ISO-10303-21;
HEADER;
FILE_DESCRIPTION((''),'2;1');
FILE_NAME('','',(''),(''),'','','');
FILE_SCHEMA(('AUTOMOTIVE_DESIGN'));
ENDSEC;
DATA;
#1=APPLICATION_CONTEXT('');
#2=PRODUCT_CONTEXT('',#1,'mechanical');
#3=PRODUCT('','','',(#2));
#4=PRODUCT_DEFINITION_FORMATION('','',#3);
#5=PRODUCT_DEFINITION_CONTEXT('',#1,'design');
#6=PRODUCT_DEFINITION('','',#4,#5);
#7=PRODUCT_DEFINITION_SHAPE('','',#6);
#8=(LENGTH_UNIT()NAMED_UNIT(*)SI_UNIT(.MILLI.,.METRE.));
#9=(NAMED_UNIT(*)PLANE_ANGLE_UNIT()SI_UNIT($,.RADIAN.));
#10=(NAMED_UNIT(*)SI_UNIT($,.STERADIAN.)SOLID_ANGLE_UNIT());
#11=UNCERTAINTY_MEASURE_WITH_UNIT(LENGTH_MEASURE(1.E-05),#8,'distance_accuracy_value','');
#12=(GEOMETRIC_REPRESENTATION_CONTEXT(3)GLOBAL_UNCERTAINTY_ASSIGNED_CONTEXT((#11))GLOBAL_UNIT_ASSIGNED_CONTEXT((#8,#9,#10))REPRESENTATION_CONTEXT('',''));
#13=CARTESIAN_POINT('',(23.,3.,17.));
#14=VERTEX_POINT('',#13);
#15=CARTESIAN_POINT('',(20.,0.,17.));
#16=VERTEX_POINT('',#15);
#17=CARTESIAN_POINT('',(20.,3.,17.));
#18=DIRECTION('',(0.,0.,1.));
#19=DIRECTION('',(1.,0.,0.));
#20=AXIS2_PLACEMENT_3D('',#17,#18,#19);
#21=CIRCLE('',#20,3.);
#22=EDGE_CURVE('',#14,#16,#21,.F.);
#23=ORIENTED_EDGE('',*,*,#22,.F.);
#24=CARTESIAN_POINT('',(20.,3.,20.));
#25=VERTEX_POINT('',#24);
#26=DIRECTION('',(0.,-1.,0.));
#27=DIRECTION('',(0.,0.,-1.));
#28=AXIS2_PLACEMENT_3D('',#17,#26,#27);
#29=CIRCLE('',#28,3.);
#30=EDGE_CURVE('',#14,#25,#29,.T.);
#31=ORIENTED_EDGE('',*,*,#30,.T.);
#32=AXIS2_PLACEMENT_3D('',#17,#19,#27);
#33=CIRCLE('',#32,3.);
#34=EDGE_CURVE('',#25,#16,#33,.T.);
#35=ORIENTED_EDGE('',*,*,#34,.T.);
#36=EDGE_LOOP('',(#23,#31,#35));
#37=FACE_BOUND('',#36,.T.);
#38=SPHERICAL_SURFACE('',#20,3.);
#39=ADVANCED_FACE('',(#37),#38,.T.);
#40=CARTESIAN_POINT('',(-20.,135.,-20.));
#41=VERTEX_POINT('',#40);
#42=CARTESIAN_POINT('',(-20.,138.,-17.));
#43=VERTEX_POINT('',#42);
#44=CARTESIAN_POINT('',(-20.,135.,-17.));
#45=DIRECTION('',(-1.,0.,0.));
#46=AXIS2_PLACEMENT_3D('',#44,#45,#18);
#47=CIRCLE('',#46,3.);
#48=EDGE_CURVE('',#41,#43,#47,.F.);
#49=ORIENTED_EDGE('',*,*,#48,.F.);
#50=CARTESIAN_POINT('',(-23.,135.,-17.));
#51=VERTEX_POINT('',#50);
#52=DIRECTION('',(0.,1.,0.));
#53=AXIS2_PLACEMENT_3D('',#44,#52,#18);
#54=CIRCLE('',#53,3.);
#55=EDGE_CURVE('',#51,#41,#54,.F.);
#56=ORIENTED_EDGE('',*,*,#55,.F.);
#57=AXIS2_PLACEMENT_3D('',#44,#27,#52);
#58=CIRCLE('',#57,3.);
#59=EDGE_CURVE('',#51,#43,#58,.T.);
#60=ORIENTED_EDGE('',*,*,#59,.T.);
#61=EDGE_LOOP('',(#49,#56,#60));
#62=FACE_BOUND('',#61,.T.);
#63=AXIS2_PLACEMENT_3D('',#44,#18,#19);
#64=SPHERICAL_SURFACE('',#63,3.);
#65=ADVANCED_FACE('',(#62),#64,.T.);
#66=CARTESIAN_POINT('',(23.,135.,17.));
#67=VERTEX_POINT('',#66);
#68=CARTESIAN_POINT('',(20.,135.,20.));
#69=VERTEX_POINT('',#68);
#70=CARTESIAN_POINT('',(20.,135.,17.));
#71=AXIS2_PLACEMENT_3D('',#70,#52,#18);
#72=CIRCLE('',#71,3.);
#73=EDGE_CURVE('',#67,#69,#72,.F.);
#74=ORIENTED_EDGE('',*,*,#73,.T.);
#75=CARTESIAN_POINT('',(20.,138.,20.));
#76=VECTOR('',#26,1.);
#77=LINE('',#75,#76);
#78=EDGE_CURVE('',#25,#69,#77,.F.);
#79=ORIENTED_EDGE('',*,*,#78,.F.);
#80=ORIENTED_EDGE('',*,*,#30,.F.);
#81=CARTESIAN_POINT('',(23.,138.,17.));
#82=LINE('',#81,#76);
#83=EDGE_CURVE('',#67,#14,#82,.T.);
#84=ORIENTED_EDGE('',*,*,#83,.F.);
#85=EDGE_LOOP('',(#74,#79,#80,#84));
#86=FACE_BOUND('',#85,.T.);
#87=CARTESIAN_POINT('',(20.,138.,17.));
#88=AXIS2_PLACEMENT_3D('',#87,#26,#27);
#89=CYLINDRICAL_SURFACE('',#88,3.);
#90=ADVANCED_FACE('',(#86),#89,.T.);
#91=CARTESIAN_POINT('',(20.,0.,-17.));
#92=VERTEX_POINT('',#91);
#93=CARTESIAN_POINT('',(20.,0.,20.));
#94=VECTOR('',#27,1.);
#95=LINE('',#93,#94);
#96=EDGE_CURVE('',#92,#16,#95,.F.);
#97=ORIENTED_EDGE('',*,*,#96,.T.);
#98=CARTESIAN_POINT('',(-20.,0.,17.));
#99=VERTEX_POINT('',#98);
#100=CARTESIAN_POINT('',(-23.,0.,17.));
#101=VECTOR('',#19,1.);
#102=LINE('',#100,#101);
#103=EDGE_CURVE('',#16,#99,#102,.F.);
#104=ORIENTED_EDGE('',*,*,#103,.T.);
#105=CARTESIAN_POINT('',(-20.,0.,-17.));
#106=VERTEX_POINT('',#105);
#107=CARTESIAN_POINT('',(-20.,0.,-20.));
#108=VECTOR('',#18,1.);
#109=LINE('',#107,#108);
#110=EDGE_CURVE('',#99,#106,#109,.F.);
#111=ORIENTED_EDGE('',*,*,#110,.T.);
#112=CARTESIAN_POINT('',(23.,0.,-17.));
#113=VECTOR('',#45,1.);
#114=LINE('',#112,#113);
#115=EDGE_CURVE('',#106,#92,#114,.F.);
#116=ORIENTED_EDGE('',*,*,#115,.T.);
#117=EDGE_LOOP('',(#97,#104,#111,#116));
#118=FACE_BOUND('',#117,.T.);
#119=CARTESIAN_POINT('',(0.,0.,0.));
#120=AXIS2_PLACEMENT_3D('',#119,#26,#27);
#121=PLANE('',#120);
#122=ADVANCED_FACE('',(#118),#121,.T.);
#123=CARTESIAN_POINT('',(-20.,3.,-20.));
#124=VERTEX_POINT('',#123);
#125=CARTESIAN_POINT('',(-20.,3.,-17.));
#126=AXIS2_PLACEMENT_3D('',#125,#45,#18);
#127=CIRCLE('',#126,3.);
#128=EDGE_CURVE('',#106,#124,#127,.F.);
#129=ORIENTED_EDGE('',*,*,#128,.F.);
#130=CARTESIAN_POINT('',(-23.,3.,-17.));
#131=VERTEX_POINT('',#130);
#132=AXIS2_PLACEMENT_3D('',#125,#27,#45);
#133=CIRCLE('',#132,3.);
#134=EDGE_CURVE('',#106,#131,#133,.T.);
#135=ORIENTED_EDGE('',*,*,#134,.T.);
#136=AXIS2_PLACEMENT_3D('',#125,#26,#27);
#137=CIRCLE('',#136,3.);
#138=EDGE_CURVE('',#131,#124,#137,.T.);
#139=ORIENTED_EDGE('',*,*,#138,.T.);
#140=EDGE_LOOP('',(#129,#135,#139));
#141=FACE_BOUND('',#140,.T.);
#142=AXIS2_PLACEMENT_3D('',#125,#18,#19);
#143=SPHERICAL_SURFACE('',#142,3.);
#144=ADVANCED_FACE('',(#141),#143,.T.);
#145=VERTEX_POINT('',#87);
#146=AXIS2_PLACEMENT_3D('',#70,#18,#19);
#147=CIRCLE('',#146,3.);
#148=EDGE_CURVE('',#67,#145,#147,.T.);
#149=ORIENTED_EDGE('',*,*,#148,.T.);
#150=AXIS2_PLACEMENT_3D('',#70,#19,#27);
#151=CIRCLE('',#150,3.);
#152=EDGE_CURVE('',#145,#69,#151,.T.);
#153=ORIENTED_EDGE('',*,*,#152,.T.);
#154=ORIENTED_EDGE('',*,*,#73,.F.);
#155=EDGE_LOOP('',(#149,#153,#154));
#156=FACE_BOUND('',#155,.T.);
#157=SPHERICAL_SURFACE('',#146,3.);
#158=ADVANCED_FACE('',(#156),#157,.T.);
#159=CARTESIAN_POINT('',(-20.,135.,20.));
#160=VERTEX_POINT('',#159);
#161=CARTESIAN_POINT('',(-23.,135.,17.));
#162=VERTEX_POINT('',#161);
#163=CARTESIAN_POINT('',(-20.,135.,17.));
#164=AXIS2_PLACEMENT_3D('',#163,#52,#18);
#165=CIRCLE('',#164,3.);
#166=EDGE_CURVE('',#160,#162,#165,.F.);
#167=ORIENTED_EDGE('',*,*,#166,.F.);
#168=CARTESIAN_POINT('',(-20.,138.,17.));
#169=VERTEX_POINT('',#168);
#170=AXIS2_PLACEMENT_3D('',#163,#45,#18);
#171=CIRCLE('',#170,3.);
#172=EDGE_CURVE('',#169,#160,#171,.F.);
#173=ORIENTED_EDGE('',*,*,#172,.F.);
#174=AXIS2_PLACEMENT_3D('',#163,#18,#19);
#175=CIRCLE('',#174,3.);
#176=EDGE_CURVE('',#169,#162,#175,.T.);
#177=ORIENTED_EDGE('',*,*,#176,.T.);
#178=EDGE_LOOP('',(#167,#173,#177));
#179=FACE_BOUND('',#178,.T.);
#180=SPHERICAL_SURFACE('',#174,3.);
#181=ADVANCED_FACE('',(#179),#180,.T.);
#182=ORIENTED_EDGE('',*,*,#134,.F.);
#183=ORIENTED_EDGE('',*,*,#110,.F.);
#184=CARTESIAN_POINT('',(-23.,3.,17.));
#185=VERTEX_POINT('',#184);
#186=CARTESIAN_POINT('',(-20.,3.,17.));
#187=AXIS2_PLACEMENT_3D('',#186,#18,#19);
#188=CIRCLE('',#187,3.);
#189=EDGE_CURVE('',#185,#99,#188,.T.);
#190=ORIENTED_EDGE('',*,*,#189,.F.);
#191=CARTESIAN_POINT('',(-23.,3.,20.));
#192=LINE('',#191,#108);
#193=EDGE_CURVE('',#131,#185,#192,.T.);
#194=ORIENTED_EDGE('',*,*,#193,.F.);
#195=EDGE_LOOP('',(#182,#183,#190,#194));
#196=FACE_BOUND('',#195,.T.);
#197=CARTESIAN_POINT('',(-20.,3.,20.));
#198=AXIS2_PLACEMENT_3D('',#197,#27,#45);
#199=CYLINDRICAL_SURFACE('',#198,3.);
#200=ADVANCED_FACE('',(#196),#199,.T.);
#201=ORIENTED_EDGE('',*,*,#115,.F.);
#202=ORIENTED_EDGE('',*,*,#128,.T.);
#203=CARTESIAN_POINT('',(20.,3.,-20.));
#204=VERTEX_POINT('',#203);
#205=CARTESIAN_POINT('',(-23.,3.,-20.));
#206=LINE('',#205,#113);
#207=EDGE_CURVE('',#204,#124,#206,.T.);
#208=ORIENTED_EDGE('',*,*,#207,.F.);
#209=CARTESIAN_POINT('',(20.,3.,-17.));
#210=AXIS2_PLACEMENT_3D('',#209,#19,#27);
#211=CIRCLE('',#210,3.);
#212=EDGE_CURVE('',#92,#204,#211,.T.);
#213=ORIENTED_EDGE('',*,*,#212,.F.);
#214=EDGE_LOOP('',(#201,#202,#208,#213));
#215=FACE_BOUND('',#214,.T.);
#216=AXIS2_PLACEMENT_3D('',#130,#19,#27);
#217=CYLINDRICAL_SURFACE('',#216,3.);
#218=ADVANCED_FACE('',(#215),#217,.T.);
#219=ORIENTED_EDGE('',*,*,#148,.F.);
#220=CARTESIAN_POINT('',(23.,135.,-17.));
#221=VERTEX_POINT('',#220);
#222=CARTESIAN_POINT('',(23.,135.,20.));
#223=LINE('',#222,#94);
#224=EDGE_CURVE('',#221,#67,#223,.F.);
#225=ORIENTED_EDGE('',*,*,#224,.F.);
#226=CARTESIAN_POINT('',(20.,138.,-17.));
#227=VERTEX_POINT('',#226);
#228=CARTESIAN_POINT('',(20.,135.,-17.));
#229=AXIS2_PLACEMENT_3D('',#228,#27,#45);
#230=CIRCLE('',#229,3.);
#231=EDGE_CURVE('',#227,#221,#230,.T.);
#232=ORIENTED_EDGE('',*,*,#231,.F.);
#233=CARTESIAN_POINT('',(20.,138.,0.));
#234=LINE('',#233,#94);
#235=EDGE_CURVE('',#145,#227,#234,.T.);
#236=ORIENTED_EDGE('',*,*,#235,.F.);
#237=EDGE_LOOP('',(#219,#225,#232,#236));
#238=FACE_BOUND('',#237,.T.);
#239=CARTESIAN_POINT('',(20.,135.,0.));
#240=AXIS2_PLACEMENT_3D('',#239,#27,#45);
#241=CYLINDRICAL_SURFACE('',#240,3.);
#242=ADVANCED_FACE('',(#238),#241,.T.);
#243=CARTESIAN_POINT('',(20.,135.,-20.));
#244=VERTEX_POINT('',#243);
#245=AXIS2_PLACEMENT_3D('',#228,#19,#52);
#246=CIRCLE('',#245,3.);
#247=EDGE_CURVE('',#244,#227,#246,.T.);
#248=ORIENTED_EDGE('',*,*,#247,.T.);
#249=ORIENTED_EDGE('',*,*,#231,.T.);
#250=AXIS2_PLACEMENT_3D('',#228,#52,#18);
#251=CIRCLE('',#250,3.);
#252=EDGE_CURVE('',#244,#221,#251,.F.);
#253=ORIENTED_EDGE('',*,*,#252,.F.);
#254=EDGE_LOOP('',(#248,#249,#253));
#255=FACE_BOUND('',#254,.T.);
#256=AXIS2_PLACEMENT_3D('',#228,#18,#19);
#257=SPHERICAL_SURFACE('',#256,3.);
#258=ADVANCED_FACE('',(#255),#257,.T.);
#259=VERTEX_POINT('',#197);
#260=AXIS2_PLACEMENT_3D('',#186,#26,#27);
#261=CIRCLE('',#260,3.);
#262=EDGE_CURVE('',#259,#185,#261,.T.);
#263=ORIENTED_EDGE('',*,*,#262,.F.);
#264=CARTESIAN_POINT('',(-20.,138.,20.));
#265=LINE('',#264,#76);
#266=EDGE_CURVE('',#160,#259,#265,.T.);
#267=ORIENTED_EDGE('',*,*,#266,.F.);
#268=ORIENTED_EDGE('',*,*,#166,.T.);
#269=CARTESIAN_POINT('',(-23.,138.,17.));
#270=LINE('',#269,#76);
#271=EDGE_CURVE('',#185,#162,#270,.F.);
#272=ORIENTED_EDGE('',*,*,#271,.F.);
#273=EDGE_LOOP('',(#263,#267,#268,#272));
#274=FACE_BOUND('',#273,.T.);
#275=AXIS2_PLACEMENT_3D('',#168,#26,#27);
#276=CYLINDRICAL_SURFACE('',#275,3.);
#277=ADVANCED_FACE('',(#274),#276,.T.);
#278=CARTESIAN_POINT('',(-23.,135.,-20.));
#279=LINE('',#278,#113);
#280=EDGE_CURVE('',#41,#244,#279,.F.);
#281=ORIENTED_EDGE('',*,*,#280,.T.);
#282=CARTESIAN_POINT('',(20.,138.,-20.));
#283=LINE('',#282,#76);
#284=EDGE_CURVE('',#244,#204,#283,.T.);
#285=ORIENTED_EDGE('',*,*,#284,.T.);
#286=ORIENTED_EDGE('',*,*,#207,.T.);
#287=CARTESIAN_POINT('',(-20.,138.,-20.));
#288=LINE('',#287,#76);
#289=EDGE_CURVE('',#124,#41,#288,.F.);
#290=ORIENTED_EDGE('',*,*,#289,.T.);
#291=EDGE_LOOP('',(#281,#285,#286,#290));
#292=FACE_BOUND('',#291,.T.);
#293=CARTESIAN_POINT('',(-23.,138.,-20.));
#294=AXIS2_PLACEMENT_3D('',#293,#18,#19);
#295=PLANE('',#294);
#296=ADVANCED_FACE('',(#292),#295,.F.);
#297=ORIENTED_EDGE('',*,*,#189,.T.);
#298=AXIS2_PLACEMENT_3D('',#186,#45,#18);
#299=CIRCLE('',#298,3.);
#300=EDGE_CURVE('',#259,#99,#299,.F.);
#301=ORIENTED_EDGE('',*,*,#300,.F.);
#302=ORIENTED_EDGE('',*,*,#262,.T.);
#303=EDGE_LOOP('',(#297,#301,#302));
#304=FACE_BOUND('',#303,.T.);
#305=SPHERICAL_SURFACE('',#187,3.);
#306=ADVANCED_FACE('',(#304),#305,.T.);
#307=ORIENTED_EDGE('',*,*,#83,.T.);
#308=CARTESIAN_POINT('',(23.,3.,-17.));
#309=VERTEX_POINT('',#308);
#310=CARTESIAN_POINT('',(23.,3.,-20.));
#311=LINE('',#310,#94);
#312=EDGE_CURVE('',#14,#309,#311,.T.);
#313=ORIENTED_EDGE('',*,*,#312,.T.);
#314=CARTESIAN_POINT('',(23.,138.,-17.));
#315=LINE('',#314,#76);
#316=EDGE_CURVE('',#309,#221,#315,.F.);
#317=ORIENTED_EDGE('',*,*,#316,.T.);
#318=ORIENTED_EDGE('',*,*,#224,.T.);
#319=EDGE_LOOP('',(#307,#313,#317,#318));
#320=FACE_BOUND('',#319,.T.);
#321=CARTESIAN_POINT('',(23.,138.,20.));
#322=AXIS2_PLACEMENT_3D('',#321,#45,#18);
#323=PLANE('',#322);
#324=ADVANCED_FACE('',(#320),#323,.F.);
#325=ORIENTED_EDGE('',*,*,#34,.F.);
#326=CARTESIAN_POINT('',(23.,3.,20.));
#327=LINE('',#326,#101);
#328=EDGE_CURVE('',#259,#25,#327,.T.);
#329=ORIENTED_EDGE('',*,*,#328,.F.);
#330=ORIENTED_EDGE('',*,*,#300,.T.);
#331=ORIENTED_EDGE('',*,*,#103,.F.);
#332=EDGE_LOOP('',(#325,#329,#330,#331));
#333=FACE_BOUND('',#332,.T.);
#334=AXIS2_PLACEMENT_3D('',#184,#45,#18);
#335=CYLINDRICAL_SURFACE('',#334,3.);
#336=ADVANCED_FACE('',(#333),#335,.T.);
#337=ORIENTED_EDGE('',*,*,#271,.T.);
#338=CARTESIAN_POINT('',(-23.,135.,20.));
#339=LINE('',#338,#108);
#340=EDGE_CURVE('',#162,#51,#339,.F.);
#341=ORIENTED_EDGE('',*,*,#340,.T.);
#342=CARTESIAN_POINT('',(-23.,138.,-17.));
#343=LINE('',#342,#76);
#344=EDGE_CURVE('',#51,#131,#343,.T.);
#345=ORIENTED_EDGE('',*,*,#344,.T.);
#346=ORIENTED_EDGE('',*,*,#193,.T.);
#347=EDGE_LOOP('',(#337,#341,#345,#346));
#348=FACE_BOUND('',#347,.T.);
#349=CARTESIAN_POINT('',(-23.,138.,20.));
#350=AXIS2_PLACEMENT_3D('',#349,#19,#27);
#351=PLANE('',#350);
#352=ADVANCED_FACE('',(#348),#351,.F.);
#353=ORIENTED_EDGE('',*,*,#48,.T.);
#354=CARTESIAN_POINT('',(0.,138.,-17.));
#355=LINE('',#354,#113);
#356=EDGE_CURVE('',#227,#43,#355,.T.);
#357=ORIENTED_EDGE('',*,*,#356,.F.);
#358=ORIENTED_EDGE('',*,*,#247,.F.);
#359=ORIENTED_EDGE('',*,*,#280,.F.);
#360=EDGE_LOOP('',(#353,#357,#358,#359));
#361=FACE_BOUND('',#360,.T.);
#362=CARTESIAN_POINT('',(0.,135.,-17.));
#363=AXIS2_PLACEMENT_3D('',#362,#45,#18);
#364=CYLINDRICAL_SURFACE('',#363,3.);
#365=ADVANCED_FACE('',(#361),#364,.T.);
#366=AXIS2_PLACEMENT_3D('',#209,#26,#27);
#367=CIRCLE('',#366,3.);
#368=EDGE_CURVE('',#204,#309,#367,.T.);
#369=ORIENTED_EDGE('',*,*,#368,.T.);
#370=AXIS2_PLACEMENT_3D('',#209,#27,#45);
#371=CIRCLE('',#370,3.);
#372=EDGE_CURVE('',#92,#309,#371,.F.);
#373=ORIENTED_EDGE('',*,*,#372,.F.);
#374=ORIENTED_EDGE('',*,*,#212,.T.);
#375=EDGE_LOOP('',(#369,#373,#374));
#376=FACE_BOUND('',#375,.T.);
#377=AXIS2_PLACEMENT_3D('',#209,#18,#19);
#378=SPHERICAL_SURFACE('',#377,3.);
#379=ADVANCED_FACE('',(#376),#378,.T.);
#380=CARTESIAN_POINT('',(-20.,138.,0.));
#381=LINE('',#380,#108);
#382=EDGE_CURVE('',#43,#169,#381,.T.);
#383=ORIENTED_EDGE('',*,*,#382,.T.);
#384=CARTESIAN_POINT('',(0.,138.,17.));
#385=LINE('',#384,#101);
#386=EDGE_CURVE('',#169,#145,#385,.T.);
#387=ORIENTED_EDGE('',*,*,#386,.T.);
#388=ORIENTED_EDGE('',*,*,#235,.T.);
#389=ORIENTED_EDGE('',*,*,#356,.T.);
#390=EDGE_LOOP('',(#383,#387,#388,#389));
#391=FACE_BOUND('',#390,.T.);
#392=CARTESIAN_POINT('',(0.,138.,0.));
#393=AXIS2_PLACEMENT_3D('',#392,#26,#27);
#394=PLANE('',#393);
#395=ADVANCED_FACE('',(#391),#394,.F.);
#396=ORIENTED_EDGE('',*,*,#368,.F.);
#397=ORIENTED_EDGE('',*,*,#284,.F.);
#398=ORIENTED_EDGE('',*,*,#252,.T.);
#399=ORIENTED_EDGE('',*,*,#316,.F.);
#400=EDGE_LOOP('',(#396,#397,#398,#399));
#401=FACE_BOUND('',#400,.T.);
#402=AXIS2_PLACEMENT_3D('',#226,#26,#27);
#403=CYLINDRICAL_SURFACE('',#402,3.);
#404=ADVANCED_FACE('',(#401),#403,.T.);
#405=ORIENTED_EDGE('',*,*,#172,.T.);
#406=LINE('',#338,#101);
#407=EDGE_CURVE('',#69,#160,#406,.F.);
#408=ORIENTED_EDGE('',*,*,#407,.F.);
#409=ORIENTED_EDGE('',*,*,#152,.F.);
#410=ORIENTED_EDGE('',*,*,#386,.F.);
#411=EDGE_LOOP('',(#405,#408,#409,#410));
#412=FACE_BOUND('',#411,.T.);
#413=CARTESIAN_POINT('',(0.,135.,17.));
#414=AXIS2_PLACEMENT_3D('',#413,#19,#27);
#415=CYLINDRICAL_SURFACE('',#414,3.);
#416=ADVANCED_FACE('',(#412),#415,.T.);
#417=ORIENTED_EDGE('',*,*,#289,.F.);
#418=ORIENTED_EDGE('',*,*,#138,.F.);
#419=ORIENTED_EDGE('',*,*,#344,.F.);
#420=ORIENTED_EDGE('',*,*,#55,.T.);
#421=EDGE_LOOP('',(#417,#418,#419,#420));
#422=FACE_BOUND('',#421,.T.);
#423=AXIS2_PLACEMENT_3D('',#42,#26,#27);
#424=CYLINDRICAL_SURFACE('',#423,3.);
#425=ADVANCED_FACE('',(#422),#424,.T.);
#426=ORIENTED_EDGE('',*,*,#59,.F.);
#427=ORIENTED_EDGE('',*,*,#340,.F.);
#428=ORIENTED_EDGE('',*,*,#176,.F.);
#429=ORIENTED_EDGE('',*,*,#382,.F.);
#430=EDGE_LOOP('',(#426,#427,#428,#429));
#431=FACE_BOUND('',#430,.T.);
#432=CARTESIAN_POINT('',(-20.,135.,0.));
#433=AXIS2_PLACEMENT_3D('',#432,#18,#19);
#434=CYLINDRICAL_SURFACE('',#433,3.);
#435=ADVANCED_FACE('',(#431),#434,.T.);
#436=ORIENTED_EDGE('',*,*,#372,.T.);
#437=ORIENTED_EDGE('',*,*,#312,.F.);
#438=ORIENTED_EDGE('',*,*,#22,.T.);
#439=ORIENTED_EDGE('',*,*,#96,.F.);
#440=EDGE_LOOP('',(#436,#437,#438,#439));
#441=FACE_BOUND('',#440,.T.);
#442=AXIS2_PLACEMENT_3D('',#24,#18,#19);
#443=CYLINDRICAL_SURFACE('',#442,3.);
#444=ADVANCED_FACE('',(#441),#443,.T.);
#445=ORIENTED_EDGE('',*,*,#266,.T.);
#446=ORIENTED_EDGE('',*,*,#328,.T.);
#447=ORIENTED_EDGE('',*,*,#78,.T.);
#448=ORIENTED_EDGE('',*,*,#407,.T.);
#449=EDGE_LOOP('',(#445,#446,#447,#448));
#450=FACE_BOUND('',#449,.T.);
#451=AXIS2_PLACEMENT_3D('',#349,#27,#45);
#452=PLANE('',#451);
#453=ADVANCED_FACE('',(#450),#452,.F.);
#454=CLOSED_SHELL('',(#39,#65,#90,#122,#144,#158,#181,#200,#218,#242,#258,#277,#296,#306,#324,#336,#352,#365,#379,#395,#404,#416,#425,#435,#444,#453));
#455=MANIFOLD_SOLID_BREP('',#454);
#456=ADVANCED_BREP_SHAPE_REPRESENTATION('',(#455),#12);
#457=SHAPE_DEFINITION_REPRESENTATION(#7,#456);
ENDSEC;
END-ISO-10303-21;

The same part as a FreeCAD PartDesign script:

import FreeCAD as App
import Part
import Sketcher

V = App.Vector


def add_polygon(sketch, points):
    """Adds a closed chain of lines whose ends are joined by coincident constraints."""
    first, n = sketch.GeometryCount, len(points)
    for a, b in zip(points, points[1:] + points[:1]):
        sketch.addGeometry(Part.LineSegment(App.Vector(*a, 0), App.Vector(*b, 0)), False)
    for i in range(n):
        sketch.addConstraint(Sketcher.Constraint("Coincident", first + i, 2, first + (i + 1) % n, 1))

doc = App.newDocument("Part")
body = doc.addObject("PartDesign::Body", "Body")

# Sketch on XZ plane
sketch1 = body.newObject("Sketcher::SketchObject", "Sketch")
sketch1.AttachmentSupport = (doc.getObject("XZ_Plane"), [""])
sketch1.MapMode = "FlatFace"
add_polygon(sketch1, [(-23, -20), (-23, 20), (23, 20), (23, -20)])  # lines 0-3
sketch1.addConstraint(Sketcher.Constraint("Vertical", 0))
sketch1.addConstraint(Sketcher.Constraint("Horizontal", 1))
sketch1.addConstraint(Sketcher.Constraint("Vertical", 2))
sketch1.addConstraint(Sketcher.Constraint("Horizontal", 3))
sketch1.addConstraint(Sketcher.Constraint("Symmetric", 0, 2, 2, 2, -1, 1))
sketch1.addConstraint(Sketcher.Constraint("DistanceX", 1, 1, 1, 2, 46.0))
sketch1.addConstraint(Sketcher.Constraint("DistanceY", 0, 1, 0, 2, 40.0))
pad1 = body.newObject("PartDesign::Pad", "Pad")
pad1.Profile = sketch1
pad1.Length = 138
pad1.Reversed = True
doc.recompute()

fillet = body.newObject("PartDesign::Fillet", "Fillet")
fillet.Base = (pad1, ["Edge1"])
fillet.UseAllEdges = True
fillet.Radius = 3

doc.recompute()
